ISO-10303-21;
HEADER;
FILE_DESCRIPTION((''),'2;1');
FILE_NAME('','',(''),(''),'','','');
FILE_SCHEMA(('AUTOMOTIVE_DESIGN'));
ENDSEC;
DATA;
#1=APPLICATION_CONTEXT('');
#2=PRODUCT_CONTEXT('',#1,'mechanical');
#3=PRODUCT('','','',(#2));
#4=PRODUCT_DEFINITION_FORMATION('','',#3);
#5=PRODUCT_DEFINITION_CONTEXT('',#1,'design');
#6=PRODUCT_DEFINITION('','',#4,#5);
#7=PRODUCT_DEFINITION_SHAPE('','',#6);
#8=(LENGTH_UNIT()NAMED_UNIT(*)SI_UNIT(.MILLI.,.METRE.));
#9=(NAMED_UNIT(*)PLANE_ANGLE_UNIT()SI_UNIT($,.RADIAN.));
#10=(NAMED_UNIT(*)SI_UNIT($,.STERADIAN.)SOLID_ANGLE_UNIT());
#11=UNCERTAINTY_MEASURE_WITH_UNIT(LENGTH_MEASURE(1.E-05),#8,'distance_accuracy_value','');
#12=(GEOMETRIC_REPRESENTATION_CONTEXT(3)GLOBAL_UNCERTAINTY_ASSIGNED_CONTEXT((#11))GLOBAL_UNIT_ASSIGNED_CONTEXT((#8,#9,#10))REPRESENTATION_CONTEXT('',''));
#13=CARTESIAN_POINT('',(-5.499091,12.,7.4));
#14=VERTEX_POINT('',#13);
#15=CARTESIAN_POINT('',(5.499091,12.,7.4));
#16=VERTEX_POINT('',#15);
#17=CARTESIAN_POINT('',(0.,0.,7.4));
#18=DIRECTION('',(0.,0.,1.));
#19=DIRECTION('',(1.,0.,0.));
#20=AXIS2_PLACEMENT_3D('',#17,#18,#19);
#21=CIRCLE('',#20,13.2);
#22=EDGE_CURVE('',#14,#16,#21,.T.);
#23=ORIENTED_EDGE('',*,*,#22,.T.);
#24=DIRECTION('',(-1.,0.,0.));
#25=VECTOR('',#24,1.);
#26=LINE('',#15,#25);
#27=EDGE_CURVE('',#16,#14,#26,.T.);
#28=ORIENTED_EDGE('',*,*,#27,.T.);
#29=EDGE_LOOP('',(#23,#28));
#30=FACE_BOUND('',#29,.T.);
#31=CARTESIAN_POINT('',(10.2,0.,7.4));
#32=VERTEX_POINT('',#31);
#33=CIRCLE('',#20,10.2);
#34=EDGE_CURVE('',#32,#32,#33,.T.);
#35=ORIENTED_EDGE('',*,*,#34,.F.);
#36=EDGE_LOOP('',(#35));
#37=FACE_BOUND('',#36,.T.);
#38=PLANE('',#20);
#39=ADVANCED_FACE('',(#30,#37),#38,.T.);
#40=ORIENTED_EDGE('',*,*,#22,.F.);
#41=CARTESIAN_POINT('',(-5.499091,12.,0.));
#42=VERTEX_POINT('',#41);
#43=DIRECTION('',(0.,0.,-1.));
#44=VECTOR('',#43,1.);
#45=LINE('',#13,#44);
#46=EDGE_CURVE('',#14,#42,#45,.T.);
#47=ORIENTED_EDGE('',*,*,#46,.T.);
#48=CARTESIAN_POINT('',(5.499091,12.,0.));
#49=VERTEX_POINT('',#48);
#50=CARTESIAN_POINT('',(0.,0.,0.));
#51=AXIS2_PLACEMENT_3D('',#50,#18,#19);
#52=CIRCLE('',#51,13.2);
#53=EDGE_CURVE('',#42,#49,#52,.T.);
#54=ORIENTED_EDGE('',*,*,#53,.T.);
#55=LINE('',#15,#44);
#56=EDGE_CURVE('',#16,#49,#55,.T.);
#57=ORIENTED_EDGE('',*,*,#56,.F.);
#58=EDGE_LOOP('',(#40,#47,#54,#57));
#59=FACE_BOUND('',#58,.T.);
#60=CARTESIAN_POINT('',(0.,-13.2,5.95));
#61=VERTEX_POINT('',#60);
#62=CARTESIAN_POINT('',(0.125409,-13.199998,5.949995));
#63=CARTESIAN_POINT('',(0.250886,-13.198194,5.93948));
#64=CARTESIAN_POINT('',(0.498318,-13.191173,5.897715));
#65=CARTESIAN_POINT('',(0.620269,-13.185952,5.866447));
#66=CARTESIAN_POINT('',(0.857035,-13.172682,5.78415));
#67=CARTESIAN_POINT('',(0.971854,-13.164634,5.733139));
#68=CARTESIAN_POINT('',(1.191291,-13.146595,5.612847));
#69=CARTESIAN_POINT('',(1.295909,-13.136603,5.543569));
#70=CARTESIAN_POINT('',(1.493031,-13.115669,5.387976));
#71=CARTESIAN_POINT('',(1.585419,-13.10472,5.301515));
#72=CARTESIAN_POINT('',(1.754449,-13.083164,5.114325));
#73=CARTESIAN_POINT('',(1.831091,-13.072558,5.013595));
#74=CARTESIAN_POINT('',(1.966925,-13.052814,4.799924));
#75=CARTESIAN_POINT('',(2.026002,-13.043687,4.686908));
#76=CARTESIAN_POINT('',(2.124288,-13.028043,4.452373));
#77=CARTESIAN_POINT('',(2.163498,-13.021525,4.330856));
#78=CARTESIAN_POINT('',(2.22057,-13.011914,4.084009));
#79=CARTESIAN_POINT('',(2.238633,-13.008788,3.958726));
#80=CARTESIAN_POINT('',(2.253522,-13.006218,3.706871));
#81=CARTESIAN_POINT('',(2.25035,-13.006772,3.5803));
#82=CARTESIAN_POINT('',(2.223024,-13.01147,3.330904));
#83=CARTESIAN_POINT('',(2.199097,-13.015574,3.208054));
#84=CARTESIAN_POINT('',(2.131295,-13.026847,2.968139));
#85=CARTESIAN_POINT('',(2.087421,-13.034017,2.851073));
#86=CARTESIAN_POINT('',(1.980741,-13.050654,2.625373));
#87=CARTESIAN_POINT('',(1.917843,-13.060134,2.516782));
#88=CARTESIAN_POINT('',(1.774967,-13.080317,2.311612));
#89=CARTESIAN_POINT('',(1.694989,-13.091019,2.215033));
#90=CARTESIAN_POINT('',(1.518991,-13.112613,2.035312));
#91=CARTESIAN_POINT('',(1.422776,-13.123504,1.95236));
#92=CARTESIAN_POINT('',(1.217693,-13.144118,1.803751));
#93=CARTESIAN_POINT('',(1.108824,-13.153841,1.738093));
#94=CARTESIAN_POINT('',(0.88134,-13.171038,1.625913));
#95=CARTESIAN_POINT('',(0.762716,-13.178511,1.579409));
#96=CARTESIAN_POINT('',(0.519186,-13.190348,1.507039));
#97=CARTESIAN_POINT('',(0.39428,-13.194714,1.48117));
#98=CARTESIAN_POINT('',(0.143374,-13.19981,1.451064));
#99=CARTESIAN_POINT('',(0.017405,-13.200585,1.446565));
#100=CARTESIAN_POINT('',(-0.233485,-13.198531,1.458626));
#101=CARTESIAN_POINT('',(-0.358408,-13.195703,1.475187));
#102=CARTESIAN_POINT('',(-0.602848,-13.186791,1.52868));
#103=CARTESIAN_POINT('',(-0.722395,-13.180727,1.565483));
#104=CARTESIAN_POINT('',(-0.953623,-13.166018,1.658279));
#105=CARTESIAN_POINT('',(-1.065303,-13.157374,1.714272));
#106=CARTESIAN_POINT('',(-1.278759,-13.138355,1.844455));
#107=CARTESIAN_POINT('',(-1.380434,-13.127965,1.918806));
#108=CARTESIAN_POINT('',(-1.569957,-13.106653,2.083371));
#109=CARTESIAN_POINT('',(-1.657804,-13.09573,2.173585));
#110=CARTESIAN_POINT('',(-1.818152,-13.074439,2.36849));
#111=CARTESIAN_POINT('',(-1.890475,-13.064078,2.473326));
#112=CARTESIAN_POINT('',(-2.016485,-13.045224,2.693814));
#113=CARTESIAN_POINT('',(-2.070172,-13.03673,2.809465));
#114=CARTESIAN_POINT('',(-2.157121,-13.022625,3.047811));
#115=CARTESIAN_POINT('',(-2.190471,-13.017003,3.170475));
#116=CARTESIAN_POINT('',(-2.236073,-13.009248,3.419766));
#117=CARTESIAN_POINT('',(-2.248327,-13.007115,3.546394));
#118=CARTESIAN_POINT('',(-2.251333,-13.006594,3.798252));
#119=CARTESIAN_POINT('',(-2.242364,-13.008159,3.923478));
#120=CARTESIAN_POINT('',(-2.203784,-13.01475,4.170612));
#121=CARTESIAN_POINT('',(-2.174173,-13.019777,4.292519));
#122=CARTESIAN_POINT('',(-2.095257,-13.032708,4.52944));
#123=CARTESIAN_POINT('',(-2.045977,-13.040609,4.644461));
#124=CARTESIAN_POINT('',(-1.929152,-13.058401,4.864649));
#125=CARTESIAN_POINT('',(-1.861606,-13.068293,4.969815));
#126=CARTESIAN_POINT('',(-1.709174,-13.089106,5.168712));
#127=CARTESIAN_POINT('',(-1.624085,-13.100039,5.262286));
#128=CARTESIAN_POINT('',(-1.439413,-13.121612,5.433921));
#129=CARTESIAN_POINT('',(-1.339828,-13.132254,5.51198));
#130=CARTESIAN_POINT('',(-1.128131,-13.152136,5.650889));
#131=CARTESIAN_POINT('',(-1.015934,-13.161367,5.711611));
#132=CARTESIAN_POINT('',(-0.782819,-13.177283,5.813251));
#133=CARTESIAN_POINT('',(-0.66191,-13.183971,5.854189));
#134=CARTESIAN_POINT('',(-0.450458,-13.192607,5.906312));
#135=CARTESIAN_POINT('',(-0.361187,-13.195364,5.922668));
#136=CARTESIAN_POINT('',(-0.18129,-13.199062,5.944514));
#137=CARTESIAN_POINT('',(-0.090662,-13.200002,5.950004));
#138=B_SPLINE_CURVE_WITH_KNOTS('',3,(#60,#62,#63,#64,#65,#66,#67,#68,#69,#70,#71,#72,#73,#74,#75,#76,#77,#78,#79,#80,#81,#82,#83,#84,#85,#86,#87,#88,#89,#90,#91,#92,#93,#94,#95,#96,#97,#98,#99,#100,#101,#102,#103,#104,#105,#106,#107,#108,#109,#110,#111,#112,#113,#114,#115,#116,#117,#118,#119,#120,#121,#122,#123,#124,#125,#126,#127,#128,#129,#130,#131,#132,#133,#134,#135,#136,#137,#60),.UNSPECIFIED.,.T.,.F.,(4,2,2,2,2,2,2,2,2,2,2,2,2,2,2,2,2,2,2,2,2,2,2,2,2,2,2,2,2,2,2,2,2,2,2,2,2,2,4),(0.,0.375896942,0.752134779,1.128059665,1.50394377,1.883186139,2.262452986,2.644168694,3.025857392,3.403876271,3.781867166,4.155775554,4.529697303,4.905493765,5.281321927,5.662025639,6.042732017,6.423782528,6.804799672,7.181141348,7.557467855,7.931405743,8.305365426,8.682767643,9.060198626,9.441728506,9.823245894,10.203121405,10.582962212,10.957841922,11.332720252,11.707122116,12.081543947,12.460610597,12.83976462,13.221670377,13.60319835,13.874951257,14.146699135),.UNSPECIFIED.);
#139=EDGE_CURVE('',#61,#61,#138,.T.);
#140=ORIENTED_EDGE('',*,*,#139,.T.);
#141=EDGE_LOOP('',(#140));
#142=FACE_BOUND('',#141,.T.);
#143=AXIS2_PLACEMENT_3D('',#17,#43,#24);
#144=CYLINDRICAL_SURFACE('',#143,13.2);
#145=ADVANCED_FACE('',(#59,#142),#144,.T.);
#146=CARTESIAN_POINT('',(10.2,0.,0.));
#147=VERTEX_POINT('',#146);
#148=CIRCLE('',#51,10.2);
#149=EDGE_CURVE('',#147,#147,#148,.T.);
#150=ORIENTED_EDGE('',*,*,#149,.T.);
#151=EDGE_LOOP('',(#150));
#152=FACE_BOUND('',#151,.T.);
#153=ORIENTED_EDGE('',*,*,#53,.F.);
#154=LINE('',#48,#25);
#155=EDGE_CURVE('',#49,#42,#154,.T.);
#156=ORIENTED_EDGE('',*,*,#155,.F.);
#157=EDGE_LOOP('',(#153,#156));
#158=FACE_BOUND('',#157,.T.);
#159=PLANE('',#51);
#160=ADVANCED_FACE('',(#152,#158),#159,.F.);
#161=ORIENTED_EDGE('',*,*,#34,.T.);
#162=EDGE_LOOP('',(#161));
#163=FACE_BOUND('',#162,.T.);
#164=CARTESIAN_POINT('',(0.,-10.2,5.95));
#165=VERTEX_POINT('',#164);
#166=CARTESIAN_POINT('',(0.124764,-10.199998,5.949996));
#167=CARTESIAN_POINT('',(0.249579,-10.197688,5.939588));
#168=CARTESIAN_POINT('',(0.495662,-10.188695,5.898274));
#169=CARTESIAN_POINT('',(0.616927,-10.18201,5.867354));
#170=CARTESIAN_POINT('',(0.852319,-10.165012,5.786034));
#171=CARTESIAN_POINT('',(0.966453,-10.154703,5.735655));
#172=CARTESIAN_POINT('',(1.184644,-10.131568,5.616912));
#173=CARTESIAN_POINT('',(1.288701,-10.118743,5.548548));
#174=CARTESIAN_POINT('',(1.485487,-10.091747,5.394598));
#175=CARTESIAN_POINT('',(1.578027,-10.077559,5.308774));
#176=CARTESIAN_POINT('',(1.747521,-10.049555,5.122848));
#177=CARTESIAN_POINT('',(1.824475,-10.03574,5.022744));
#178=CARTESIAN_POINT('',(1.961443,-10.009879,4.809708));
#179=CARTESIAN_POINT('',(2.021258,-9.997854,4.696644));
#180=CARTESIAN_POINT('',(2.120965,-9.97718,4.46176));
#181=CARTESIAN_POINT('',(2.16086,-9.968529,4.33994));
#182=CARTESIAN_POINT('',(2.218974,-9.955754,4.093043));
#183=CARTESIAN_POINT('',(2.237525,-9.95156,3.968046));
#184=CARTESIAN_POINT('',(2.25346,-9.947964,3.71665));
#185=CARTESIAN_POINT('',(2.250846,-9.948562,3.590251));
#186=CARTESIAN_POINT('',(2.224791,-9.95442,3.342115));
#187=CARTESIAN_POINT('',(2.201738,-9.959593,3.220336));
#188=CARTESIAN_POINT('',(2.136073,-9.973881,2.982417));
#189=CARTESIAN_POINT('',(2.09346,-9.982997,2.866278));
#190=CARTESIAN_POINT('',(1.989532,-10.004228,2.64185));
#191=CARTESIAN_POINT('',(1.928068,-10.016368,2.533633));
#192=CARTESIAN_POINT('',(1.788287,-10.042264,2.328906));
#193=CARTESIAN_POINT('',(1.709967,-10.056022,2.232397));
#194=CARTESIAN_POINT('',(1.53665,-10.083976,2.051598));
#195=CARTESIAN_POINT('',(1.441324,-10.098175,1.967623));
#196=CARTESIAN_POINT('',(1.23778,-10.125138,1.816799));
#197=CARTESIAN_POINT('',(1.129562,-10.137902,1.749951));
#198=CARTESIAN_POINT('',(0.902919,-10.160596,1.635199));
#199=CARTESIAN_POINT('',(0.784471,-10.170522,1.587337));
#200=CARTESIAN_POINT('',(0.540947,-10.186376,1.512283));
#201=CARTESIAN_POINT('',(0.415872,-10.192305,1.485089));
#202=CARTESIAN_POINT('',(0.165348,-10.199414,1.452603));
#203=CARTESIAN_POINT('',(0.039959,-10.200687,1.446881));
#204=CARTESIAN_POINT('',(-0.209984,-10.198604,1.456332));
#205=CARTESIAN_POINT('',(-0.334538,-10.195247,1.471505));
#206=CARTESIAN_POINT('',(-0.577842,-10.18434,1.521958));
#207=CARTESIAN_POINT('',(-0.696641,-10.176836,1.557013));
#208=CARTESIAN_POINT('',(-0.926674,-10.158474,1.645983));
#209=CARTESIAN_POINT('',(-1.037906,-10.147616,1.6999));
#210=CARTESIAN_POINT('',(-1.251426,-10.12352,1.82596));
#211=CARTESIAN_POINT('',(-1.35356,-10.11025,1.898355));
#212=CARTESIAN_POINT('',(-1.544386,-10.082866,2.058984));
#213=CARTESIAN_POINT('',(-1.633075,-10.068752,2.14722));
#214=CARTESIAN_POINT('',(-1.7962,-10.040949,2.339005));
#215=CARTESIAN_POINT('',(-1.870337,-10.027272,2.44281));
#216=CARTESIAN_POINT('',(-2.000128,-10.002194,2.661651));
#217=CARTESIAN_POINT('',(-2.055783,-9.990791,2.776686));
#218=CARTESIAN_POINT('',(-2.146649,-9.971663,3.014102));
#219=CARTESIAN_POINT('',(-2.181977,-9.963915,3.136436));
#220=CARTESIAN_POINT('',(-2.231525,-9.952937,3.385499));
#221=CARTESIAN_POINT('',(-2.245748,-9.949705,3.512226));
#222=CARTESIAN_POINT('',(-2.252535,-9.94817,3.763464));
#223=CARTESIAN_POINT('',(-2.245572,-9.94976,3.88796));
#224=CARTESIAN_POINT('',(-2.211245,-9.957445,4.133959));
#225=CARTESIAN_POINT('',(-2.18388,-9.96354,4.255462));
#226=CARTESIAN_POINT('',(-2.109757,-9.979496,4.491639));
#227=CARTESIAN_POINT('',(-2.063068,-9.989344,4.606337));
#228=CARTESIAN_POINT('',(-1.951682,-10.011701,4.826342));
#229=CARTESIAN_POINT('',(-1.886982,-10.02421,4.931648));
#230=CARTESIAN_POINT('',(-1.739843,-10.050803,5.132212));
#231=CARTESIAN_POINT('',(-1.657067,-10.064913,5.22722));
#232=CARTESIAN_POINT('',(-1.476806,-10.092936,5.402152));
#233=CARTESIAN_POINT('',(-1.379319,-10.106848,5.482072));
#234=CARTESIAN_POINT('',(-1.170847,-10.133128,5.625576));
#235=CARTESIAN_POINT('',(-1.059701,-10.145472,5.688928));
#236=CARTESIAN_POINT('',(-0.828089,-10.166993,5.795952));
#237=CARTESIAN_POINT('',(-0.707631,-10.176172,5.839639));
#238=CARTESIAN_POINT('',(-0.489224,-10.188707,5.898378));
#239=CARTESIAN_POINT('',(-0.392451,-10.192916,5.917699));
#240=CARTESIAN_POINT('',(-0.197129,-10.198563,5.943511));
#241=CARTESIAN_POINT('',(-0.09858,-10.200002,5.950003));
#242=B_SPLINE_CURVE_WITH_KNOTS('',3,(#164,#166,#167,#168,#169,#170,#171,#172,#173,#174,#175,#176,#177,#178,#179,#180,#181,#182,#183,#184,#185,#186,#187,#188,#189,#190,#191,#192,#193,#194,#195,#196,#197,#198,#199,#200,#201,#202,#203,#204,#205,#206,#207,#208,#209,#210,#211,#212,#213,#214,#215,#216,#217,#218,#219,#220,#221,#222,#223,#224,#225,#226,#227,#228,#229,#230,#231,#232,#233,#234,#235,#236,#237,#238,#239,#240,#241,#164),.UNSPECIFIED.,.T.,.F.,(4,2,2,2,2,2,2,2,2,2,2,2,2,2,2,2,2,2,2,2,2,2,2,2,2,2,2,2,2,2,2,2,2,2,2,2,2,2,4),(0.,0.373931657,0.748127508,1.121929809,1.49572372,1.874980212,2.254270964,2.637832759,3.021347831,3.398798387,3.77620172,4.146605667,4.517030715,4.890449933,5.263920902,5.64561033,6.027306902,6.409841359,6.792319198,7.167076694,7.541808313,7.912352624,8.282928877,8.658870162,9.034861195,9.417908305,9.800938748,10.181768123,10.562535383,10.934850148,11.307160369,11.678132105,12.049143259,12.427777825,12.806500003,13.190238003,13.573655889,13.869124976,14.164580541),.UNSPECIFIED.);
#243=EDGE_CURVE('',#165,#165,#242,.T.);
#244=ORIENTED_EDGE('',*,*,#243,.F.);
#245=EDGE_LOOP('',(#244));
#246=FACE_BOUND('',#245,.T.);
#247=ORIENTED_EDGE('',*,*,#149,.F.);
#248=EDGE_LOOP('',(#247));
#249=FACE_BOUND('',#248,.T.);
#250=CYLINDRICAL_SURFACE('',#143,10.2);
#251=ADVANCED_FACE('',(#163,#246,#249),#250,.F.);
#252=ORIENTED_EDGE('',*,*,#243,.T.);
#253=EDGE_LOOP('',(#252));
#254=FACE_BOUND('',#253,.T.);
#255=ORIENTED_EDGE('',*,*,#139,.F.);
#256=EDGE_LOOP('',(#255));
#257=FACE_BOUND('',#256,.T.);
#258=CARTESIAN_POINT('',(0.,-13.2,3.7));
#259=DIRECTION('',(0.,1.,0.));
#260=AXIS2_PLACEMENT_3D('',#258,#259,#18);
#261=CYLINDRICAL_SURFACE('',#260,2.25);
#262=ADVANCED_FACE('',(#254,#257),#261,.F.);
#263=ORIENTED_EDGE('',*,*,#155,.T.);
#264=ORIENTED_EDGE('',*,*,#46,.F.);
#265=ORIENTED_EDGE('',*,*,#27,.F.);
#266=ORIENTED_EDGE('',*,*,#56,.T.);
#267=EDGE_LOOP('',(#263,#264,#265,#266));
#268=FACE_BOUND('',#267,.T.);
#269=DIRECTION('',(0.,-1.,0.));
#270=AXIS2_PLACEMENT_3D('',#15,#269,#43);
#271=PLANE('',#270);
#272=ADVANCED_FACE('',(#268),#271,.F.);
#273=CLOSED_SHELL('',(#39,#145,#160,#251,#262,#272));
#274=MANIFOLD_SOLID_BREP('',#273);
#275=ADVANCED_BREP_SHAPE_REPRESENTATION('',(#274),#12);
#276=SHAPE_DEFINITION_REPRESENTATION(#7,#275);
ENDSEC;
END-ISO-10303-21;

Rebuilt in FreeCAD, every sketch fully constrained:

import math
import FreeCAD as App
import Part
import Sketcher
from FreeCAD import Vector
Q = App.Units.Quantity

doc = App.newDocument("Part")
body = doc.addObject("PartDesign::Body", "Body")

# Sketch on XY plane
sketch1 = body.newObject("Sketcher::SketchObject", "Sketch")
sketch1.AttachmentSupport = (doc.getObject("XY_Plane"), [""])
sketch1.MapMode = "FlatFace"
sketch1.addGeometry([
    Part.LineSegment(Vector(5, 12, 0), Vector(-5, 12, 0)),
    Part.ArcOfCircle(Part.Circle(Vector(0, 0, 0), Vector(0, 0, 1), 13), math.radians(115), math.radians(425)),
    Part.Circle(Vector(0, 0, 0), Vector(0, 0, 1), 10),
], False)
sketch1.addConstraint([
    Sketcher.Constraint("Coincident", 0, 1, 1, 2),
    Sketcher.Constraint("Coincident", 1, 1, 0, 2),
    Sketcher.Constraint("Horizontal", 0),
    Sketcher.Constraint("Coincident", 1, 3, -1, 1),
    Sketcher.Constraint("Coincident", 2, 3, -1, 1),
    Sketcher.Constraint("Diameter", 2, Q("20.4 mm")),
    Sketcher.Constraint("Radius", 1, Q("13.2 mm")),
    Sketcher.Constraint("DistanceY", -1, 1, 0, 1, Q("12 mm")),
])
pad1 = body.newObject("PartDesign::Pad", "Pad")
pad1.Profile = sketch1
pad1.Length = 7.4

# Sketch on XZ plane
sketch2 = body.newObject("Sketcher::SketchObject", "Sketch001")
sketch2.AttachmentSupport = (doc.getObject("XZ_Plane"), [""])
sketch2.MapMode = "FlatFace"
sketch2.addGeometry(Part.Circle(Vector(0, 3.7, 0), Vector(0, 0, 1), 2.2), False)
sketch2.addConstraint([
    Sketcher.Constraint("PointOnObject", 0, 3, -2),
    Sketcher.Constraint("Diameter", 0, Q("4.5 mm")),
    Sketcher.Constraint("DistanceY", -1, 1, 0, 3, Q("3.7 mm")),
])
pocket1 = body.newObject("PartDesign::Pocket", "Pocket")
pocket1.Profile = sketch2
pocket1.Type = "ThroughAll"
pocket1.Reversed = True

doc.recompute()
